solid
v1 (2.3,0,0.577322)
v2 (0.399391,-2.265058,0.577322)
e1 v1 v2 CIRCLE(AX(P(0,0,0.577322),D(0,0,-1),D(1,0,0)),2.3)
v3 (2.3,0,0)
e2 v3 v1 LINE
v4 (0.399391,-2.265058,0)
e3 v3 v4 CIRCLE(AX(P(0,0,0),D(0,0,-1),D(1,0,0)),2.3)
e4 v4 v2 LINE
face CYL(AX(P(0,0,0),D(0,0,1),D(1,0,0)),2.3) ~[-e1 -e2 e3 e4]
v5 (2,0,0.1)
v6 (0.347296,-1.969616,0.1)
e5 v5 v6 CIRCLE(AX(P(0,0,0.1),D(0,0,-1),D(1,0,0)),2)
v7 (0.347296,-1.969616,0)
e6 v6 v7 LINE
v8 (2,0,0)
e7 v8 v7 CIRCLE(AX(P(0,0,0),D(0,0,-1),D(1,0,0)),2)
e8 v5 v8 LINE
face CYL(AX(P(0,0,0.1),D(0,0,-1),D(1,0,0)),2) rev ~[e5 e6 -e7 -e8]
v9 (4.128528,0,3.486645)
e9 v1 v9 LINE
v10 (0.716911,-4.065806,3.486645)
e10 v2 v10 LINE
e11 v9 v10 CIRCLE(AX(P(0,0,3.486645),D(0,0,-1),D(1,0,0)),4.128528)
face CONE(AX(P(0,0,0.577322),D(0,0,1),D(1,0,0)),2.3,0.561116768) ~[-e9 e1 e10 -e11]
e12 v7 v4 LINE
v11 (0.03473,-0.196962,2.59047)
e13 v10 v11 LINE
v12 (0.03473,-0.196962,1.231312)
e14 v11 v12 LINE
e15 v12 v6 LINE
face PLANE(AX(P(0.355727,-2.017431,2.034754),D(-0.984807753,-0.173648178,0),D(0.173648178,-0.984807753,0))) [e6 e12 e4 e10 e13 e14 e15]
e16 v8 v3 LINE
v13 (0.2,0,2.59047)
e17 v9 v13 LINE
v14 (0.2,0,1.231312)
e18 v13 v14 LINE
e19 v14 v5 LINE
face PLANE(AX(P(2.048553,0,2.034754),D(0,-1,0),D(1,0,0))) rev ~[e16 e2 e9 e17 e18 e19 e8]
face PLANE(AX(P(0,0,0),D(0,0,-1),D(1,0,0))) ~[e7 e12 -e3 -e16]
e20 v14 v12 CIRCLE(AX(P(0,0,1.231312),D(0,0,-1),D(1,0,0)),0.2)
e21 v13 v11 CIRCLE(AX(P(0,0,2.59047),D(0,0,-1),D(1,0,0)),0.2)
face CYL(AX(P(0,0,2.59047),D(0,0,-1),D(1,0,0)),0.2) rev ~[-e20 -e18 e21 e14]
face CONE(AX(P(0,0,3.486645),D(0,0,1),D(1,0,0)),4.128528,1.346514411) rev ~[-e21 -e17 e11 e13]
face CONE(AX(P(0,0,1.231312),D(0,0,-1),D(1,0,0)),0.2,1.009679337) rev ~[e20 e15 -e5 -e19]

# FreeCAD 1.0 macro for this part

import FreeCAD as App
import Part
import Sketcher

V = App.Vector
Q = App.Units.Quantity

doc = App.newDocument("Part")
body = doc.addObject("PartDesign::Body", "Body")

sketch1 = doc.addObject("Sketcher::SketchObject", "Sketch")
body.addObject(sketch1)
sketch1.AttachmentSupport = (doc.XZ_Plane, [""])
sketch1.MapMode = "FlatFace"
sketch1.addGeometry(Part.LineSegment(V(0.2, 1.23, 0), V(2, 0.1, 0)), False)
sketch1.addGeometry(Part.LineSegment(V(2, 0.1, 0), V(2, 0, 0)), False)
sketch1.addGeometry(Part.LineSegment(V(2, 0, 0), V(2.3, 0, 0)), False)
sketch1.addGeometry(Part.LineSegment(V(2.3, 0, 0), V(2.3, 0.58, 0)), False)
sketch1.addGeometry(Part.LineSegment(V(2.3, 0.58, 0), V(4.13, 3.49, 0)), False)
sketch1.addGeometry(Part.LineSegment(V(4.13, 3.49, 0), V(0.2, 2.59, 0)), False)
sketch1.addGeometry(Part.LineSegment(V(0.2, 2.59, 0), V(0.2, 1.23, 0)), False)
sketch1.addConstraint(Sketcher.Constraint("Coincident", 0, 2, 1, 1))
sketch1.addConstraint(Sketcher.Constraint("Coincident", 1, 2, 2, 1))
sketch1.addConstraint(Sketcher.Constraint("Coincident", 2, 2, 3, 1))
sketch1.addConstraint(Sketcher.Constraint("Coincident", 3, 2, 4, 1))
sketch1.addConstraint(Sketcher.Constraint("Coincident", 4, 2, 5, 1))
sketch1.addConstraint(Sketcher.Constraint("Coincident", 5, 2, 6, 1))
sketch1.addConstraint(Sketcher.Constraint("Coincident", 6, 2, 0, 1))
sketch1.addConstraint(Sketcher.Constraint("Vertical", 1))
sketch1.addConstraint(Sketcher.Constraint("Horizontal", 2))
sketch1.addConstraint(Sketcher.Constraint("Vertical", 3))
sketch1.addConstraint(Sketcher.Constraint("Vertical", 6))
sketch1.addConstraint(Sketcher.Constraint("PointOnObject", 1, 2, -1))
sketch1.addConstraint(Sketcher.Constraint("Perpendicular", 0, 4))
sketch1.addConstraint(Sketcher.Constraint("DistanceX", 2, 1, 2, 2, Q("0.3 mm")))
sketch1.addConstraint(Sketcher.Constraint("DistanceY", 1, 2, 1, 1, Q("0.1 mm")))
sketch1.addConstraint(Sketcher.Constraint("DistanceX", -1, 1, 0, 2, Q("2 mm")))
sketch1.addConstraint(Sketcher.Constraint("DistanceX", -1, 1, 5, 2, Q("0.2 mm")))
sketch1.addConstraint(Sketcher.Constraint("DistanceY", 3, 1, 3, 2, Q("0.577322 mm")))
sketch1.addConstraint(Sketcher.Constraint("Distance", 4, Q("3.43623 mm")))
sketch1.addConstraint(Sketcher.Constraint("Distance", 5, Q("4.029449 mm")))
sketch1.addConstraint(Sketcher.Constraint("DistanceY", 6, 2, 6, 1, Q("1.359158 mm")))
revolution = doc.addObject("PartDesign::Revolution", "Revolution")
body.addObject(revolution)
revolution.Profile = sketch1
revolution.ReferenceAxis = (sketch1, ["V_Axis"])
revolution.Angle = 80
revolution.Reversed = True

doc.recompute()
